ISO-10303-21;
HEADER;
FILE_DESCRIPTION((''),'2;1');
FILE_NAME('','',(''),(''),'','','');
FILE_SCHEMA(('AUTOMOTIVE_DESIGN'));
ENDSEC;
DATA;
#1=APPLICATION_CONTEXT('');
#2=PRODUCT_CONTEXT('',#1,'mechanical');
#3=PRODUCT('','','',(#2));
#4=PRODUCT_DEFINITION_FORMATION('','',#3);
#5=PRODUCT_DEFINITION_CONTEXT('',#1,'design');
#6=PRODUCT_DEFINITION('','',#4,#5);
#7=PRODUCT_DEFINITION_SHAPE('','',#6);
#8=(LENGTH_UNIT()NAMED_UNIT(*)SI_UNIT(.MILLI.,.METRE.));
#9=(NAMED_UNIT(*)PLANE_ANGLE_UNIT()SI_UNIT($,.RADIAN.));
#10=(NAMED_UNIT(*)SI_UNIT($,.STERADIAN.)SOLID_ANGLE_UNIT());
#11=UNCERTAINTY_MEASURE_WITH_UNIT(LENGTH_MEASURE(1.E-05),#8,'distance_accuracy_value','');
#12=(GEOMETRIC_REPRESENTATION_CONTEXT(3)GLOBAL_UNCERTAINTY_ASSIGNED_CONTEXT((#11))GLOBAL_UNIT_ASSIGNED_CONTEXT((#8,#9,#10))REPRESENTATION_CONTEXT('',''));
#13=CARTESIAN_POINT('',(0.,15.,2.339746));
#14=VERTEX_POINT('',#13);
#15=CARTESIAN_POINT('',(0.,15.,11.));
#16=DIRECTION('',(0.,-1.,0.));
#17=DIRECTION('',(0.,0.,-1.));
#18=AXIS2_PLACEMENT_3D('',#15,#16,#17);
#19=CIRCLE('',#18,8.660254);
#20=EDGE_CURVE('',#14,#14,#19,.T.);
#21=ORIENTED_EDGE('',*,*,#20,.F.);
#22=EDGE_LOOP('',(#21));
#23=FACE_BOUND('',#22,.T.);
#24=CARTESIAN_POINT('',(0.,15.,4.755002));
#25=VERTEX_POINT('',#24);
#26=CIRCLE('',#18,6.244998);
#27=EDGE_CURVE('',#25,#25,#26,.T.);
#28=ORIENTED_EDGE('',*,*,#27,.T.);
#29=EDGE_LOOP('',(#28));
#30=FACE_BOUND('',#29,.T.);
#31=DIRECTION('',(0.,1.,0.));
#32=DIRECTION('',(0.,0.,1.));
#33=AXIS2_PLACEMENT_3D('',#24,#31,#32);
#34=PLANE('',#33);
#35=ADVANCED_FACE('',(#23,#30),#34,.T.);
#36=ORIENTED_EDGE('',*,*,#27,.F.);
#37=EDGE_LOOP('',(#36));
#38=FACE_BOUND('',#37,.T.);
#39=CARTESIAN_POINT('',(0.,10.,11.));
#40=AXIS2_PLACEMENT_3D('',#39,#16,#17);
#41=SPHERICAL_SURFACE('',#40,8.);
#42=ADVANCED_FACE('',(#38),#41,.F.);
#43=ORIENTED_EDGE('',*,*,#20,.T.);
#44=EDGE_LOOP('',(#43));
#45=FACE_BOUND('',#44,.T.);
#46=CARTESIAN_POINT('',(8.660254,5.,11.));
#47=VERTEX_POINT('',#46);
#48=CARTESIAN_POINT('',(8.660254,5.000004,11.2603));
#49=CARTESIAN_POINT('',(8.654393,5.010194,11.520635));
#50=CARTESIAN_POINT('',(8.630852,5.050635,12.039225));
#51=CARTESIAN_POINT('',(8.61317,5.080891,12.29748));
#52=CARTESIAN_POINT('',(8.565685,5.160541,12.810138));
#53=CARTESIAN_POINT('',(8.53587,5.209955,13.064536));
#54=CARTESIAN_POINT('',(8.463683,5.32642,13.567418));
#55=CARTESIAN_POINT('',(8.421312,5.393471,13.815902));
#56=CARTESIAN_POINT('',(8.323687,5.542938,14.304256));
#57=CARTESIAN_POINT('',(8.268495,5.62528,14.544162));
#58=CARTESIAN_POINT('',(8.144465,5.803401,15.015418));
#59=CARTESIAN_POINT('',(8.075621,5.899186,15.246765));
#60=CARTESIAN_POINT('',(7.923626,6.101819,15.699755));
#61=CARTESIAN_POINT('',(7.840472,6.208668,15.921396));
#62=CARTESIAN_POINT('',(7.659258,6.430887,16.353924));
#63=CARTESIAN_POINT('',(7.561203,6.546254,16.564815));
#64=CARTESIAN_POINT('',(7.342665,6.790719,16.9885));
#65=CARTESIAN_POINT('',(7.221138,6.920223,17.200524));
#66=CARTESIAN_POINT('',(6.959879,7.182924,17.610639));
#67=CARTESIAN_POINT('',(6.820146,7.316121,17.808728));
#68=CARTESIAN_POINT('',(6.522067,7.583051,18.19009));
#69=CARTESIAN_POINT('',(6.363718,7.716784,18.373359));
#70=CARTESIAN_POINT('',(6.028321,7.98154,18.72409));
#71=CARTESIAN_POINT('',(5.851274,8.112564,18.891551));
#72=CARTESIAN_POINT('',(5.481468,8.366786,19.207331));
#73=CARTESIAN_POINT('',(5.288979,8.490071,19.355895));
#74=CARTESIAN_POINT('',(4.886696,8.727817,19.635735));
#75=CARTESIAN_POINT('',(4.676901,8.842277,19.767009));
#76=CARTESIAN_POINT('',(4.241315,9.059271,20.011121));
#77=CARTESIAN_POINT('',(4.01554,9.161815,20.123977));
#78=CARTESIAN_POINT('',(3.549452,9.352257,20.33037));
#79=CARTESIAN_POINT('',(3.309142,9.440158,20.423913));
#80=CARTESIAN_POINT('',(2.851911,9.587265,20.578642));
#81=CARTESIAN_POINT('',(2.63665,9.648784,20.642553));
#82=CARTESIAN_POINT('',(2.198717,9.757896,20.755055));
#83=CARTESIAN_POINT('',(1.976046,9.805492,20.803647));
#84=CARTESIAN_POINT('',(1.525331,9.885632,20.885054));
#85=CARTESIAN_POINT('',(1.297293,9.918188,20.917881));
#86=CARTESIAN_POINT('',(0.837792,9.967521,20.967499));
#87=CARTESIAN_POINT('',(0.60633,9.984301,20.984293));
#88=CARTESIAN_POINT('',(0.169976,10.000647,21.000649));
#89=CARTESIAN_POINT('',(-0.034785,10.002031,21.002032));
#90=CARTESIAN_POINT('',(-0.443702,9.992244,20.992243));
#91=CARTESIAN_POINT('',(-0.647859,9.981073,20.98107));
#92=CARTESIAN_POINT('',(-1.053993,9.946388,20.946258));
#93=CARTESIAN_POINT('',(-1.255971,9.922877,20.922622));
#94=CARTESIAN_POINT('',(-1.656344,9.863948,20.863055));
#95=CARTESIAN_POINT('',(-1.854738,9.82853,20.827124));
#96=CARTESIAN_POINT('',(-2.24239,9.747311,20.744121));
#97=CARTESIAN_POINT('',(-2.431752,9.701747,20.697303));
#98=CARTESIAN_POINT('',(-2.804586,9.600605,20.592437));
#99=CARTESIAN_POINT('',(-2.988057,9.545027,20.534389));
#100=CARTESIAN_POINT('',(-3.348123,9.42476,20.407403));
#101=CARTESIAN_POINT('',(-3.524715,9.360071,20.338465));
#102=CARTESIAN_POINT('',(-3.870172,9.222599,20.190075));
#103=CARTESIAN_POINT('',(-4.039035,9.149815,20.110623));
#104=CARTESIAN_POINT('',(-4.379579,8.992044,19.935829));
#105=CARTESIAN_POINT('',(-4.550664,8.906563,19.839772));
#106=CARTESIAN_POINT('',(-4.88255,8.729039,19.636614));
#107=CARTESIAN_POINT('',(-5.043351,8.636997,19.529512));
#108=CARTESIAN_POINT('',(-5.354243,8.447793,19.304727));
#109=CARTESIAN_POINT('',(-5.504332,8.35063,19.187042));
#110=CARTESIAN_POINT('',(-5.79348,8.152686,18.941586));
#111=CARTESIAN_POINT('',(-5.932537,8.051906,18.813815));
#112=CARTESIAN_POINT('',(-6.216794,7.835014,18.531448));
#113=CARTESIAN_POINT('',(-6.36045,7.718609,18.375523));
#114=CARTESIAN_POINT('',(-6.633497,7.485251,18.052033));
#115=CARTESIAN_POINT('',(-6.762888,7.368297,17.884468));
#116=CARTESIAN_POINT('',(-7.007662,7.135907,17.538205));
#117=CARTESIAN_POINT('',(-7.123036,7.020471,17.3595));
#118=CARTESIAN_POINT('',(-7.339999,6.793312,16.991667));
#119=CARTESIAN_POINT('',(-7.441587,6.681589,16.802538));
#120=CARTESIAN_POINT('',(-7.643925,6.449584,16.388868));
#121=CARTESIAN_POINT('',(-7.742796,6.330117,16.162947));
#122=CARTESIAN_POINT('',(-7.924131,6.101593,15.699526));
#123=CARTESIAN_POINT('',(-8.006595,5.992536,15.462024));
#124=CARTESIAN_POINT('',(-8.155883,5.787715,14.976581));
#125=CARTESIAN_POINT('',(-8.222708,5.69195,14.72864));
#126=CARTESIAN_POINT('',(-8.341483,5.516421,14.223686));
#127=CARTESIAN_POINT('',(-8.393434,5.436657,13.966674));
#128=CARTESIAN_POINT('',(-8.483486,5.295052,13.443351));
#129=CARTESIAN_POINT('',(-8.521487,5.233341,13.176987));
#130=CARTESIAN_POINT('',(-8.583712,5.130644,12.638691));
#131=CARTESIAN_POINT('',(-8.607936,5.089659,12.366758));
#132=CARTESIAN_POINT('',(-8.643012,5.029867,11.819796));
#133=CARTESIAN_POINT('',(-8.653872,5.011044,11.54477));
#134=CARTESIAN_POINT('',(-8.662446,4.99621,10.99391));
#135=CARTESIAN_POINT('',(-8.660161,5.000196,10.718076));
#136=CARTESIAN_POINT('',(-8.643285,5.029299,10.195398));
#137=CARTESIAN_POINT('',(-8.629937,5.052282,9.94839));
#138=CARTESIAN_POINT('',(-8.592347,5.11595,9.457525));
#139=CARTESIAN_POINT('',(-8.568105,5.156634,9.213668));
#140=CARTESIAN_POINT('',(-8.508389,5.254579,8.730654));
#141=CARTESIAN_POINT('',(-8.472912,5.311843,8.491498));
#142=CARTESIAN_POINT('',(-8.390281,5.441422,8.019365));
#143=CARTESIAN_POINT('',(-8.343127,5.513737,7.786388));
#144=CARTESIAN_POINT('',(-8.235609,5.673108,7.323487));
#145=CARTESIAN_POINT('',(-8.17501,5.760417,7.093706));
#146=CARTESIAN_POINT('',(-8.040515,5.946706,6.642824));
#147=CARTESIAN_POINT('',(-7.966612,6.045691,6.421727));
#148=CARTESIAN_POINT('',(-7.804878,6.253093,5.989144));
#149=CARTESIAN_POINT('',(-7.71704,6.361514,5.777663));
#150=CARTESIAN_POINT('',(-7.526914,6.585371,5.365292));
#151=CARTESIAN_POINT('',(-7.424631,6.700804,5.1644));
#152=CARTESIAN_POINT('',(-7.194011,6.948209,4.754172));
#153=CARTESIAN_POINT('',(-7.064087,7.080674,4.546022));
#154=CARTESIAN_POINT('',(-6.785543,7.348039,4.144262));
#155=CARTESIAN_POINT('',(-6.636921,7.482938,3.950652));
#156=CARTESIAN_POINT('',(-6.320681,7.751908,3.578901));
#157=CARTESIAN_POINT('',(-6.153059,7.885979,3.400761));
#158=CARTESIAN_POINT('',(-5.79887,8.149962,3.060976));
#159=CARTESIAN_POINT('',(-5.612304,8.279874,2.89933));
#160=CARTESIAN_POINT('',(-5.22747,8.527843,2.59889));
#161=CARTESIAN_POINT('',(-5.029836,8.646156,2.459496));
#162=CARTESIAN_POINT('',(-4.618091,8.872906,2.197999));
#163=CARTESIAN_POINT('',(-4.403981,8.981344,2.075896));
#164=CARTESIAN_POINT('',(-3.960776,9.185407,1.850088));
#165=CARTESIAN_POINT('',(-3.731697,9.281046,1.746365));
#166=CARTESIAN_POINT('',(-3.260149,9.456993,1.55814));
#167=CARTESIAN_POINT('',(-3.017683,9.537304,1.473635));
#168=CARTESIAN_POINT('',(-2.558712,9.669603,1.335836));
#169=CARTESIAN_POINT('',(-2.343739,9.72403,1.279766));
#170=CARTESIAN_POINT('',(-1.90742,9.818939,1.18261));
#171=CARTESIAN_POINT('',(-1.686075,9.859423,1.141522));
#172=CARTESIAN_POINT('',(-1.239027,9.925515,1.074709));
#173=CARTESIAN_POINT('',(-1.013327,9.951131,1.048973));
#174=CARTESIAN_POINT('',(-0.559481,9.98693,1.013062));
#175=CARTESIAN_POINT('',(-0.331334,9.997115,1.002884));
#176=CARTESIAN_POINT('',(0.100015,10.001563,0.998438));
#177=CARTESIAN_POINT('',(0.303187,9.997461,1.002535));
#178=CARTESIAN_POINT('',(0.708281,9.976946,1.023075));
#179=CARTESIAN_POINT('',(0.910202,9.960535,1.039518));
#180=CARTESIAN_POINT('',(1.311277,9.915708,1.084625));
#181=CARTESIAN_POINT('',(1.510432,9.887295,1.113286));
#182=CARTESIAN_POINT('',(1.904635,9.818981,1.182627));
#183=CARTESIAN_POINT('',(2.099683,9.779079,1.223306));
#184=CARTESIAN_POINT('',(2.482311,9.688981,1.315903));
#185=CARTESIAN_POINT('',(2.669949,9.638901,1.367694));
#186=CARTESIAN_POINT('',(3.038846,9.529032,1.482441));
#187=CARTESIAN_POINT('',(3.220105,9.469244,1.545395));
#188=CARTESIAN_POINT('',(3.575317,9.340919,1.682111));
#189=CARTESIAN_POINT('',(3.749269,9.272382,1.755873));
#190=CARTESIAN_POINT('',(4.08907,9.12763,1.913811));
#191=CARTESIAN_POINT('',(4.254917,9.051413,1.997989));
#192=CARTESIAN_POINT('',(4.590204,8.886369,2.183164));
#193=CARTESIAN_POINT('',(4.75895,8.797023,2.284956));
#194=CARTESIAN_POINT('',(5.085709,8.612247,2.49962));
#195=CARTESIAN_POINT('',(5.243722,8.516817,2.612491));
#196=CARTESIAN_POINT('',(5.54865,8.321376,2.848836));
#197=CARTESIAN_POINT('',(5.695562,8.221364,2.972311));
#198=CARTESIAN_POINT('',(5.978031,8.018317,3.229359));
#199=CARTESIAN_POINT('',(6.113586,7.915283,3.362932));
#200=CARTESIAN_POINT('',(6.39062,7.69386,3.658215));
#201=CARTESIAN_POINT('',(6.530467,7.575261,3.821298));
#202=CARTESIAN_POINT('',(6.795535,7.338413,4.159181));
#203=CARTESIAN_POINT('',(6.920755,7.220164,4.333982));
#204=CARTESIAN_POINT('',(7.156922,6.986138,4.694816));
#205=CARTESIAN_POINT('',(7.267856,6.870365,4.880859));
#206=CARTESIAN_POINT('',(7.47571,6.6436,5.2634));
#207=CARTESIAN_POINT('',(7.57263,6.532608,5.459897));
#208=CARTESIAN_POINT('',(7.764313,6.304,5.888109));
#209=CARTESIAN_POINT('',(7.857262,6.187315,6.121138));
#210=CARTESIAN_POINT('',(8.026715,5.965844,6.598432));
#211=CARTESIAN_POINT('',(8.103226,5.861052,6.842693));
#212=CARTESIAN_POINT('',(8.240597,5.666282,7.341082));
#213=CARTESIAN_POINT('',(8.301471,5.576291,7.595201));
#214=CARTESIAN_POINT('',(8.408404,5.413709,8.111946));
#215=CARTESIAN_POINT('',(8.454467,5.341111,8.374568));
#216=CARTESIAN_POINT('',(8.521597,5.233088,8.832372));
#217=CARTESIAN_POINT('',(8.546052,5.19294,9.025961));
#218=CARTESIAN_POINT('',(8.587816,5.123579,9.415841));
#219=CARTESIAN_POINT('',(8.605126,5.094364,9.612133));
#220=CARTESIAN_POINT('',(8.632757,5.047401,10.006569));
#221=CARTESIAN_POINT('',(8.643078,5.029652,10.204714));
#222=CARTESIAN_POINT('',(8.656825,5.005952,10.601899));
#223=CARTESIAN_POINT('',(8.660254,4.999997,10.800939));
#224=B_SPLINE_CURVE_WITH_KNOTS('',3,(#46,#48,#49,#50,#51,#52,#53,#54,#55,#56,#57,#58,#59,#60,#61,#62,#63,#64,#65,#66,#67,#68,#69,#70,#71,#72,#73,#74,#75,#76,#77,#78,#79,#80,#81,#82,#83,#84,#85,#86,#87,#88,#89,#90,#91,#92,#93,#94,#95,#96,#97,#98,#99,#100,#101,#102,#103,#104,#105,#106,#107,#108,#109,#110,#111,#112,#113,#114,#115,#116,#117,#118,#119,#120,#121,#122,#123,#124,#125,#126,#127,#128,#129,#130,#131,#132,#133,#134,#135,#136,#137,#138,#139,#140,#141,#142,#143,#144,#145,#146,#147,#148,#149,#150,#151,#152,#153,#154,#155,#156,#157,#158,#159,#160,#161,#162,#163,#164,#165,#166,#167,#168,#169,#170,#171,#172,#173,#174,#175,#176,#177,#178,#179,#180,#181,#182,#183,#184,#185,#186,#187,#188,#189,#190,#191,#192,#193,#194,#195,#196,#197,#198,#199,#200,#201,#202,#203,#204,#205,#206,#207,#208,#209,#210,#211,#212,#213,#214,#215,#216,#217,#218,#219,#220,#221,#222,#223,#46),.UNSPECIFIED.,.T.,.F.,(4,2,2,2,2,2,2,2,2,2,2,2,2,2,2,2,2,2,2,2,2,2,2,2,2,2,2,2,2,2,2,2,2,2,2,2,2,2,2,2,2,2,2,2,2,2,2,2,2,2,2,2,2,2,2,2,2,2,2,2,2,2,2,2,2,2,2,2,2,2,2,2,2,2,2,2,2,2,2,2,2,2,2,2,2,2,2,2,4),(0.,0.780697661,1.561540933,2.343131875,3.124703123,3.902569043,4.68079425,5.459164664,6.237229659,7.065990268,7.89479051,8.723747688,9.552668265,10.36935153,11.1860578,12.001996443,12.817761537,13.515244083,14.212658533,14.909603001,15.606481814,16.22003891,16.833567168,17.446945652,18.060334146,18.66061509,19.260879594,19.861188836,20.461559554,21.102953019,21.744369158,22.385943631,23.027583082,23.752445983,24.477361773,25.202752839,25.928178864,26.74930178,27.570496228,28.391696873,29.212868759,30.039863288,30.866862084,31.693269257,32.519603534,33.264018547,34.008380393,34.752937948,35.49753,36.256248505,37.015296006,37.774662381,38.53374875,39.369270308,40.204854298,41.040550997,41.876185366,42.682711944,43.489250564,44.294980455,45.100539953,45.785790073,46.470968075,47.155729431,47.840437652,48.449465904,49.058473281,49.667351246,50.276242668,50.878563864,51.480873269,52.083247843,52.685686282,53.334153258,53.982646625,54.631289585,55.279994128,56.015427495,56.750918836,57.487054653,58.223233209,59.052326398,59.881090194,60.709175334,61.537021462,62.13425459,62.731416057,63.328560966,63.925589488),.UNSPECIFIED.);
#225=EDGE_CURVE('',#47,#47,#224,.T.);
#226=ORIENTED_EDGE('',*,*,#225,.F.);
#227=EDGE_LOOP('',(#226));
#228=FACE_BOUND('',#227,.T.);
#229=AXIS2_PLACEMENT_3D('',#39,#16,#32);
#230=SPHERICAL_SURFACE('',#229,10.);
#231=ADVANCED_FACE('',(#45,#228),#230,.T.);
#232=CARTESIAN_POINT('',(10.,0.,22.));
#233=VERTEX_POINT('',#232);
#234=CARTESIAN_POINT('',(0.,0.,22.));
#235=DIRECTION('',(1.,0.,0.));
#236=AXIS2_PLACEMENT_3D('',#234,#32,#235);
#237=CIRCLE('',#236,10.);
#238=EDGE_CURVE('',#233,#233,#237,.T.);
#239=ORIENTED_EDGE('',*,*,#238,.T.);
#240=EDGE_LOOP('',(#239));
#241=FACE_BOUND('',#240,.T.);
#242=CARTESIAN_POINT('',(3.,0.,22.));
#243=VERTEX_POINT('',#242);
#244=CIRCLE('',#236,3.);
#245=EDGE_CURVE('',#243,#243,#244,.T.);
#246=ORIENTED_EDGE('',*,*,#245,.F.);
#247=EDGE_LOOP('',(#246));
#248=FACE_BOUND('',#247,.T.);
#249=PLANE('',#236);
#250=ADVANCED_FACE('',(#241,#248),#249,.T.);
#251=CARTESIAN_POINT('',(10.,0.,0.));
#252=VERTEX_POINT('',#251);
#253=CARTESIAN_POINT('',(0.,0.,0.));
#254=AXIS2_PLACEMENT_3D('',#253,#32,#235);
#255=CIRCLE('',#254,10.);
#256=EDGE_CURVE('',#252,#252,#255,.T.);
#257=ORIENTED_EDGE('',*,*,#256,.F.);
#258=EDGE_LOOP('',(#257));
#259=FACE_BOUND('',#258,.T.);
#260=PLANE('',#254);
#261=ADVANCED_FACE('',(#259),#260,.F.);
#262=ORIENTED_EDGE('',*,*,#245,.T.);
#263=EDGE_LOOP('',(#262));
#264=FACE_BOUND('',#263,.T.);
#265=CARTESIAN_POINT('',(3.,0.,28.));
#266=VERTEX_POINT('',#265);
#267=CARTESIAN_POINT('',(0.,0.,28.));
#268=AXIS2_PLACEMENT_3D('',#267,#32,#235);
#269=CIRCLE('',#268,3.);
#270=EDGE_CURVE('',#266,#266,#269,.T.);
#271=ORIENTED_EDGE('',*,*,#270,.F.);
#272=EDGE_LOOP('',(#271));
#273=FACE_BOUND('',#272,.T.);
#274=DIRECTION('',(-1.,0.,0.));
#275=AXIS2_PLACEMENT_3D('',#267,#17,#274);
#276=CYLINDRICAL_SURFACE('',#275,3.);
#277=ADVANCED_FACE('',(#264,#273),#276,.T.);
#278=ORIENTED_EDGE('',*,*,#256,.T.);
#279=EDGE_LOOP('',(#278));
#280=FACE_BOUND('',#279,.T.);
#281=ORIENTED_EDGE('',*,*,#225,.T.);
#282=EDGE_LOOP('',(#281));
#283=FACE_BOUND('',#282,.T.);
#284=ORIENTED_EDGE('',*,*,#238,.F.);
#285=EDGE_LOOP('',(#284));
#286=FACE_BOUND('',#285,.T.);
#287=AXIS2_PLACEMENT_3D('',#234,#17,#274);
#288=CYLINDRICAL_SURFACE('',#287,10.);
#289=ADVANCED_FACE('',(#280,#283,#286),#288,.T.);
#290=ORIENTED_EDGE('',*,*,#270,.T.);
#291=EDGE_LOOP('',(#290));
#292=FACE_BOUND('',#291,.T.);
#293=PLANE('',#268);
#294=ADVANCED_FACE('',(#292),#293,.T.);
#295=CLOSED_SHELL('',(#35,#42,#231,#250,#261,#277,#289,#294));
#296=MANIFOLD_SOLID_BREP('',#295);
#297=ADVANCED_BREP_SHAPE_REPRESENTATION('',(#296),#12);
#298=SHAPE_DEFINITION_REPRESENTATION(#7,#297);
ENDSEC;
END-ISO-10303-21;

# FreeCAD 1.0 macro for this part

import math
import FreeCAD as App
import Part
import Sketcher
from FreeCAD import Vector
Q = App.Units.Quantity

doc = App.newDocument("Part")
body = doc.addObject("PartDesign::Body", "Body")

sketch1 = doc.addObject("Sketcher::SketchObject", "Sketch")
body.addObject(sketch1)
sketch1.AttachmentSupport = (doc.XY_Plane, [""])
sketch1.MapMode = "FlatFace"
sketch1.addGeometry(Part.Circle(Vector(0, 0, 0), Vector(0, 0, 1), 10), False)
sketch1.addConstraint([
    Sketcher.Constraint("Coincident", 0, 3, -1, 1),
    Sketcher.Constraint("Diameter", 0, Q("20 mm")),
])
pad1 = doc.addObject("PartDesign::Pad", "Pad")
body.addObject(pad1)
pad1.Profile = sketch1
pad1.Length = 22

sketch2 = doc.addObject("Sketcher::SketchObject", "Sketch001")
body.addObject(sketch2)
sketch2.AttachmentSupport = (doc.XY_Plane, [""])
sketch2.MapMode = "FlatFace"
sketch2.AttachmentOffset = App.Placement(Vector(0, 0, 22), App.Rotation())
sketch2.addGeometry(Part.Circle(Vector(0, 0, 0), Vector(0, 0, 1), 3), False)
sketch2.addConstraint([
    Sketcher.Constraint("Coincident", 0, 3, -1, 1),
    Sketcher.Constraint("Diameter", 0, Q("6 mm")),
])
pad2 = doc.addObject("PartDesign::Pad", "Pad001")
body.addObject(pad2)
pad2.Profile = sketch2
pad2.Length = 6

sketch3 = doc.addObject("Sketcher::SketchObject", "Sketch002")
body.addObject(sketch3)
sketch3.AttachmentSupport = (doc.YZ_Plane, [""])
sketch3.MapMode = "FlatFace"
sketch3.addGeometry([
    Part.LineSegment(Vector(10, 11, 0), Vector(0, 11, 0)),
    Part.ArcOfCircle(Part.Circle(Vector(10, 11, 0), Vector(0, 0, 1), 10), math.radians(180), math.radians(270)),
    Part.LineSegment(Vector(10, 1, 0), Vector(10, 11, 0)),
], False)
sketch3.addGeometry(Part.LineSegment(Vector(0, 11, 0), Vector(10, 11, 0)), True)
sketch3.addConstraint([
    Sketcher.Constraint("Coincident", 0, 2, 1, 1),
    Sketcher.Constraint("Coincident", 1, 2, 2, 1),
    Sketcher.Constraint("Coincident", 2, 2, 0, 1),
    Sketcher.Constraint("Horizontal", 0),
    Sketcher.Constraint("Vertical", 2),
    Sketcher.Constraint("Horizontal", 3),
    Sketcher.Constraint("Coincident", 2, 2, 1, 3),
    Sketcher.Constraint("Coincident", 3, 1, 0, 2),
    Sketcher.Constraint("PointOnObject", 0, 2, -2),
    Sketcher.Constraint("Vertical", 1, 2, 3, 2),
    Sketcher.Constraint("Radius", 1, Q("10 mm")),
    Sketcher.Constraint("DistanceY", -1, 1, 1, 3, Q("11 mm")),
])
groove = doc.addObject("PartDesign::Groove", "Groove")
body.addObject(groove)
groove.Profile = sketch3
groove.ReferenceAxis = (sketch3, ["Axis0"])
groove.Angle = 360

sketch4 = doc.addObject("Sketcher::SketchObject", "Sketch003")
body.addObject(sketch4)
sketch4.AttachmentSupport = (doc.YZ_Plane, [""])
sketch4.MapMode = "FlatFace"
sketch4.addGeometry([
    Part.LineSegment(Vector(15, 2.339746, 0), Vector(15, 4.755002, 0)),
    Part.ArcOfCircle(Part.Circle(Vector(10, 11, 0), Vector(0, 0, 1), 8), math.radians(180), math.radians(308.682187)),
    Part.LineSegment(Vector(2, 11, 0), Vector(0, 11, 0)),
    Part.ArcOfCircle(Part.Circle(Vector(10, 11, 0), Vector(0, 0, 1), 10), math.radians(180), math.radians(300)),
], False)
sketch4.addGeometry(Part.LineSegment(Vector(0, 11, 0), Vector(15, 11, 0)), True)
sketch4.addConstraint([
    Sketcher.Constraint("Coincident", 0, 2, 1, 2),
    Sketcher.Constraint("Coincident", 1, 1, 2, 1),
    Sketcher.Constraint("Coincident", 2, 2, 3, 1),
    Sketcher.Constraint("Coincident", 3, 2, 0, 1),
    Sketcher.Constraint("Vertical", 0),
    Sketcher.Constraint("Horizontal", 2),
    Sketcher.Constraint("Horizontal", 4),
    Sketcher.Constraint("Coincident", 3, 3, 1, 3),
    Sketcher.Constraint("Coincident", 4, 1, 2, 2),
    Sketcher.Constraint("PointOnObject", 2, 2, -2),
    Sketcher.Constraint("Horizontal", 3, 3, 1, 1),
    Sketcher.Constraint("Vertical", 3, 2, 4, 2),
    Sketcher.Constraint("Radius", 1, Q("8 mm")),
    Sketcher.Constraint("Radius", 3, Q("10 mm")),
    Sketcher.Constraint("DistanceX", 4, 1, 4, 2, Q("15 mm")),
    Sketcher.Constraint("DistanceY", -1, 1, 1, 3, Q("11 mm")),
])
revolution = doc.addObject("PartDesign::Revolution", "Revolution")
body.addObject(revolution)
revolution.Profile = sketch4
revolution.ReferenceAxis = (sketch4, ["Axis0"])
revolution.Angle = 360

doc.recompute()
